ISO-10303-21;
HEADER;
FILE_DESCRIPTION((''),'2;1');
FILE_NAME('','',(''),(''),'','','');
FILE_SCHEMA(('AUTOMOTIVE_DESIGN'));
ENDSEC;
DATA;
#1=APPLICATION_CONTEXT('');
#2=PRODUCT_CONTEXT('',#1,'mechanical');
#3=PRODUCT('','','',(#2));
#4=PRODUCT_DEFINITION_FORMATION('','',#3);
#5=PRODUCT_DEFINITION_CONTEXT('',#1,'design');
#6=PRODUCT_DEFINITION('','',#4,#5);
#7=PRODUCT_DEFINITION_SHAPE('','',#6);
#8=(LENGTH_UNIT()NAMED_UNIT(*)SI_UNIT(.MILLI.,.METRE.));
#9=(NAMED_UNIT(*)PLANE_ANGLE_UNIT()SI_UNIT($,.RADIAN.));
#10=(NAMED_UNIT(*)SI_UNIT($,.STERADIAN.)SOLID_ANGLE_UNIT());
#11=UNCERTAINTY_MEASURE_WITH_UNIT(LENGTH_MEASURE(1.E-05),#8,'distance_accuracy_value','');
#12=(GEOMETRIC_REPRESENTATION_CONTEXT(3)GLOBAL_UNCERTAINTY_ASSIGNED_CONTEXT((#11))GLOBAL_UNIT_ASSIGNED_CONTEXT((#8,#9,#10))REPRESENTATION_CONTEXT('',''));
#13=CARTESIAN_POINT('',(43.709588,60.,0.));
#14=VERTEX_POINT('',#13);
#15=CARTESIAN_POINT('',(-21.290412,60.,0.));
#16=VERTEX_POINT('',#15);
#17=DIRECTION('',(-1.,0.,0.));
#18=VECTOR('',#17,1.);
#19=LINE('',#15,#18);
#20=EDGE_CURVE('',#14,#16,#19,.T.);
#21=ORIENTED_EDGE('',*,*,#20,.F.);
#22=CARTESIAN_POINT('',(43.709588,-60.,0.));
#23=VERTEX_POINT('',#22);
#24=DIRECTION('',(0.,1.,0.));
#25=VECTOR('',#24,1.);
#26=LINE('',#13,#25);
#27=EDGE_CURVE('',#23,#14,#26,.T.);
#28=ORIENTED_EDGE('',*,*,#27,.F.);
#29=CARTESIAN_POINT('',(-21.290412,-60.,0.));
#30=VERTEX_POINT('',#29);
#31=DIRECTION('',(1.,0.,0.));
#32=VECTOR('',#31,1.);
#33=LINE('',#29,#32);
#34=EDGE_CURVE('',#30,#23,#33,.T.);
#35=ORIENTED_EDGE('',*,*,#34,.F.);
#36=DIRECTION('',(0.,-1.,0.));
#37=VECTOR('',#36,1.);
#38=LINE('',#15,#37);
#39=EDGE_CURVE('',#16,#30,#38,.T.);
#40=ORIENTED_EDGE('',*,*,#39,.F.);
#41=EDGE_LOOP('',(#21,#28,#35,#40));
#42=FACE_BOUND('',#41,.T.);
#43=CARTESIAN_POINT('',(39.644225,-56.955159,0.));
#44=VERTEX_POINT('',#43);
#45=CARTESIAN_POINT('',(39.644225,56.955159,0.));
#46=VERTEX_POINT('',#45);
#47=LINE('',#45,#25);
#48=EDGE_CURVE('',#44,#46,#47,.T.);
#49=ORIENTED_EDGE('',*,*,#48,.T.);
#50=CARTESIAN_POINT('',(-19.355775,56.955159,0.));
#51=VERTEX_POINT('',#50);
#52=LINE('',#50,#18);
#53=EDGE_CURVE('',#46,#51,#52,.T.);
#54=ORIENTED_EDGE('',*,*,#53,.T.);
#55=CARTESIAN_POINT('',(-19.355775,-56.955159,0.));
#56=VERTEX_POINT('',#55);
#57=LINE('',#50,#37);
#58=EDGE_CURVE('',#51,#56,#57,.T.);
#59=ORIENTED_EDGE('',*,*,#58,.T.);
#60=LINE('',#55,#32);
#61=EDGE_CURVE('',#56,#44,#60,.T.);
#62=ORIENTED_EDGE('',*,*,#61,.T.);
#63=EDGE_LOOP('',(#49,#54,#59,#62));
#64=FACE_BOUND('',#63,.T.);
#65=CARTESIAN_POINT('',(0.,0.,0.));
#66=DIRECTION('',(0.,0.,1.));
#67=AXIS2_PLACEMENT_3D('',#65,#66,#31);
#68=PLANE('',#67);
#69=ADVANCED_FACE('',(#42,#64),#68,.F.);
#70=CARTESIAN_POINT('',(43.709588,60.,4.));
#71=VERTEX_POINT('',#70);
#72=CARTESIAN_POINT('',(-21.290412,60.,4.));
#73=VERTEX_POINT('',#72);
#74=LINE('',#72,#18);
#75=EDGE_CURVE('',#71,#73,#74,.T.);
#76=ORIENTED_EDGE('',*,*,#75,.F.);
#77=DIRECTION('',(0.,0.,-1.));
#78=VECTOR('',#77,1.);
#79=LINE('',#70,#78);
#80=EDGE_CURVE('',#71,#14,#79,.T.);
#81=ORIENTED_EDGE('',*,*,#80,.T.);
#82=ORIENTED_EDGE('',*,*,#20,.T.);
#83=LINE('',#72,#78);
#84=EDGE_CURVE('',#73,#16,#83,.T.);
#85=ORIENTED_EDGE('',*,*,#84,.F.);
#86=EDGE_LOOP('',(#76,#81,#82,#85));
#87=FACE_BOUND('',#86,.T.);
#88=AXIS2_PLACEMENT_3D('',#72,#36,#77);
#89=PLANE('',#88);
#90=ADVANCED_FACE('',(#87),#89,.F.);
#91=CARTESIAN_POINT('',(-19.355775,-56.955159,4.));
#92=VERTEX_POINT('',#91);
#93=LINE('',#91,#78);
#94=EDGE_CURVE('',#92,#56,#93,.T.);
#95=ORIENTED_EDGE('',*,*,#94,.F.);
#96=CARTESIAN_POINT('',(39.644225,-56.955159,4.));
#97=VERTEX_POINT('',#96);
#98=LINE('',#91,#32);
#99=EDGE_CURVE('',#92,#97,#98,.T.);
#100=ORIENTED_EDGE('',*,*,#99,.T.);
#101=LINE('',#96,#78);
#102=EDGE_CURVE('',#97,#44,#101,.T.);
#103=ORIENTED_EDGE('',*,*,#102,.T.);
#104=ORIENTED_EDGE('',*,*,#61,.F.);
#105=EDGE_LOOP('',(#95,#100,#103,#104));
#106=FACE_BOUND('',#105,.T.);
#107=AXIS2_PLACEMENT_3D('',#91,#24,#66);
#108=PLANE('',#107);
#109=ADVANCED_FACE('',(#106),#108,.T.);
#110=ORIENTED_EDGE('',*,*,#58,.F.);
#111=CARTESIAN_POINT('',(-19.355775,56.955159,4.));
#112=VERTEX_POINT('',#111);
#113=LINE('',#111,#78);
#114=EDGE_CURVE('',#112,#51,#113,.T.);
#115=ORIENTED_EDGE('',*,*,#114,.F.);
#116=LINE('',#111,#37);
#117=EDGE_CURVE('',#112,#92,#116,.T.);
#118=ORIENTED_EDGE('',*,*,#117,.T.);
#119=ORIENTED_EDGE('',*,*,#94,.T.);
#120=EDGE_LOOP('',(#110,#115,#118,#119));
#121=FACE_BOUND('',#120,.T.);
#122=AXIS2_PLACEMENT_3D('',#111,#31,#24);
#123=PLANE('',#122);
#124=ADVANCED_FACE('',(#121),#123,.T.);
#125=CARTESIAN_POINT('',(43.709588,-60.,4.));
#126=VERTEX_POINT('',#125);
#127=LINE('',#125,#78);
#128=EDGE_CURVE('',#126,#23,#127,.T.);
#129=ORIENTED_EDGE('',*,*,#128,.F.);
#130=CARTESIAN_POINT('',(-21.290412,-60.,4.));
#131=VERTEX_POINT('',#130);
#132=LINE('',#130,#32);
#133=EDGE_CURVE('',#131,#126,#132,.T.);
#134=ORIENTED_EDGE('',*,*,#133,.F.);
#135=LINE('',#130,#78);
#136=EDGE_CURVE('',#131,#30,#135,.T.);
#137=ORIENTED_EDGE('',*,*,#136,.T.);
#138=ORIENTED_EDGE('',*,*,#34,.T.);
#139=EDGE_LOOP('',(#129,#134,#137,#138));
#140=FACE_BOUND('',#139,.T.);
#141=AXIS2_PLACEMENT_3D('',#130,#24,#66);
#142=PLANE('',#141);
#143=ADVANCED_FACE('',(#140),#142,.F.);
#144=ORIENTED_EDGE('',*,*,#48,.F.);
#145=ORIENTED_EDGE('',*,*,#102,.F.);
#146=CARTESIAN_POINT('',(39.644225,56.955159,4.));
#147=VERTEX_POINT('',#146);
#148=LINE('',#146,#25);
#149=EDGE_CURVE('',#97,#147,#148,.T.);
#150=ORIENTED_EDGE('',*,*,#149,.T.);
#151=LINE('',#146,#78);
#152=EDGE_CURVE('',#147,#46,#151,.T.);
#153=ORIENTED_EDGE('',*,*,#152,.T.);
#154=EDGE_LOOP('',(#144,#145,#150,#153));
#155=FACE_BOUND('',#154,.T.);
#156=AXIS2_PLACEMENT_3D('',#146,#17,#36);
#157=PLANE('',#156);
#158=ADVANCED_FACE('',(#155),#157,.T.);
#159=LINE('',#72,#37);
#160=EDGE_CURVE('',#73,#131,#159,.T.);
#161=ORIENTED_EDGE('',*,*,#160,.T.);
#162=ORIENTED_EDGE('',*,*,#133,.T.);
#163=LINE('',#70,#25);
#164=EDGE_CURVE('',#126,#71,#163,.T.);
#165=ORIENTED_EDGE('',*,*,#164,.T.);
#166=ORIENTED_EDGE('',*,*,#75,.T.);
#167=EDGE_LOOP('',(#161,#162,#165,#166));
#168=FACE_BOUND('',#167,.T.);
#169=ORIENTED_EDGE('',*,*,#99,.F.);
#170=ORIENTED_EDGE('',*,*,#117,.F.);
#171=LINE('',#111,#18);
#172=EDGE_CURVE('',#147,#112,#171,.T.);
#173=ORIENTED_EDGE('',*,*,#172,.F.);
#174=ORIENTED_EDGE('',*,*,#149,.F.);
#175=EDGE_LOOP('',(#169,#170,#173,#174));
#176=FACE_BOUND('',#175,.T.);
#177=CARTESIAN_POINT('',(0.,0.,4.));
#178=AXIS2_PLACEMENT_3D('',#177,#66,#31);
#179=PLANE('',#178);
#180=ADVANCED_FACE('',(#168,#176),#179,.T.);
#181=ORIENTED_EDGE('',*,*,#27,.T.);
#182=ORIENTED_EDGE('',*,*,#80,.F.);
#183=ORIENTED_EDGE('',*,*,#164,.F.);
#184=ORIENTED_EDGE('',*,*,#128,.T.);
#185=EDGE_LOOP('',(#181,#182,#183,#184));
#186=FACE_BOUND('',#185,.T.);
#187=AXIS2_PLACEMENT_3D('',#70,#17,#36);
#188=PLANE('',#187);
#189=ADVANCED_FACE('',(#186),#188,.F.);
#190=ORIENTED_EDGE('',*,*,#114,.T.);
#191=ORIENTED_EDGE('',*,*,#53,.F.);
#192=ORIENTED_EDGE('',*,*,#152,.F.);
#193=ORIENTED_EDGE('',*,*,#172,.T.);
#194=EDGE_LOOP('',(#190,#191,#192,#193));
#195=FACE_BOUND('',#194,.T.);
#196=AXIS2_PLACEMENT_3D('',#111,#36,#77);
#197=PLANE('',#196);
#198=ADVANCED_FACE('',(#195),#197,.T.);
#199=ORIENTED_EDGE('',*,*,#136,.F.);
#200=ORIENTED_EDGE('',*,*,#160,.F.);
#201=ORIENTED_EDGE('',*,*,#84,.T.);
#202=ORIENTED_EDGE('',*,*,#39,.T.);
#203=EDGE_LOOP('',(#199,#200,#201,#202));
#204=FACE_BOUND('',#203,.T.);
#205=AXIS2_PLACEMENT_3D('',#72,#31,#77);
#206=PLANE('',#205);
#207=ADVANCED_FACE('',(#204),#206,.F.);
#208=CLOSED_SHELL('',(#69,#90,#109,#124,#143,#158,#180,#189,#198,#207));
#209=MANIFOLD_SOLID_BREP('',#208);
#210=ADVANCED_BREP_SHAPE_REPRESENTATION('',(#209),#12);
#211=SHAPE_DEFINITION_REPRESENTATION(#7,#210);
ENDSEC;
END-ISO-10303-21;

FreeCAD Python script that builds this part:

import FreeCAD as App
import Part
import Sketcher
from FreeCAD import Vector


def add_polygon(sketch, points):
    """Adds a closed chain of lines whose ends are joined by coincident constraints."""
    first, n = sketch.GeometryCount, len(points)
    for a, b in zip(points, points[1:] + points[:1]):
        sketch.addGeometry(Part.LineSegment(App.Vector(*a, 0), App.Vector(*b, 0)), False)
    for i in range(n):
        sketch.addConstraint(Sketcher.Constraint("Coincident", first + i, 2, first + (i + 1) % n, 1))

doc = App.newDocument("Part")
body = doc.addObject("PartDesign::Body", "Body")

# Sketch on XY plane
sketch1 = body.newObject("Sketcher::SketchObject", "Sketch")
sketch1.AttachmentSupport = (doc.getObject("XY_Plane"), [""])
sketch1.MapMode = "FlatFace"
add_polygon(sketch1, [(-21.290412, 60), (-21.290412, -60), (43.709588, -60), (43.709588, 60)])  # lines 0-3
add_polygon(sketch1, [(39.644225, -56.955159), (-19.355775, -56.955159), (-19.355775, 56.955159), (39.644225, 56.955159)])  # lines 4-7
sketch1.addConstraint(Sketcher.Constraint("Vertical", 0))
sketch1.addConstraint(Sketcher.Constraint("Horizontal", 1))
sketch1.addConstraint(Sketcher.Constraint("Vertical", 2))
sketch1.addConstraint(Sketcher.Constraint("Horizontal", 3))
sketch1.addConstraint(Sketcher.Constraint("Horizontal", 4))
sketch1.addConstraint(Sketcher.Constraint("Vertical", 5))
sketch1.addConstraint(Sketcher.Constraint("Horizontal", 6))
sketch1.addConstraint(Sketcher.Constraint("Vertical", 7))
sketch1.addConstraint(Sketcher.Constraint("DistanceX", 1, 1, 1, 2, 65.0))
sketch1.addConstraint(Sketcher.Constraint("DistanceX", 4, 2, 4, 1, 59.0))
sketch1.addConstraint(Sketcher.Constraint("DistanceY", 0, 2, 0, 1, 120.0))
sketch1.addConstraint(Sketcher.Constraint("DistanceY", 0, 2, -1, 1, 60.0))
sketch1.addConstraint(Sketcher.Constraint("DistanceY", 5, 1, 5, 2, 113.910318))
sketch1.addConstraint(Sketcher.Constraint("DistanceX", 0, 2, -1, 1, 21.290412))
sketch1.addConstraint(Sketcher.Constraint("DistanceY", 4, 2, -1, 1, 56.955159))
sketch1.addConstraint(Sketcher.Constraint("DistanceX", 4, 2, -1, 1, 19.355775))
pad1 = body.newObject("PartDesign::Pad", "Pad")
pad1.Profile = sketch1
pad1.Length = 4

doc.recompute()
